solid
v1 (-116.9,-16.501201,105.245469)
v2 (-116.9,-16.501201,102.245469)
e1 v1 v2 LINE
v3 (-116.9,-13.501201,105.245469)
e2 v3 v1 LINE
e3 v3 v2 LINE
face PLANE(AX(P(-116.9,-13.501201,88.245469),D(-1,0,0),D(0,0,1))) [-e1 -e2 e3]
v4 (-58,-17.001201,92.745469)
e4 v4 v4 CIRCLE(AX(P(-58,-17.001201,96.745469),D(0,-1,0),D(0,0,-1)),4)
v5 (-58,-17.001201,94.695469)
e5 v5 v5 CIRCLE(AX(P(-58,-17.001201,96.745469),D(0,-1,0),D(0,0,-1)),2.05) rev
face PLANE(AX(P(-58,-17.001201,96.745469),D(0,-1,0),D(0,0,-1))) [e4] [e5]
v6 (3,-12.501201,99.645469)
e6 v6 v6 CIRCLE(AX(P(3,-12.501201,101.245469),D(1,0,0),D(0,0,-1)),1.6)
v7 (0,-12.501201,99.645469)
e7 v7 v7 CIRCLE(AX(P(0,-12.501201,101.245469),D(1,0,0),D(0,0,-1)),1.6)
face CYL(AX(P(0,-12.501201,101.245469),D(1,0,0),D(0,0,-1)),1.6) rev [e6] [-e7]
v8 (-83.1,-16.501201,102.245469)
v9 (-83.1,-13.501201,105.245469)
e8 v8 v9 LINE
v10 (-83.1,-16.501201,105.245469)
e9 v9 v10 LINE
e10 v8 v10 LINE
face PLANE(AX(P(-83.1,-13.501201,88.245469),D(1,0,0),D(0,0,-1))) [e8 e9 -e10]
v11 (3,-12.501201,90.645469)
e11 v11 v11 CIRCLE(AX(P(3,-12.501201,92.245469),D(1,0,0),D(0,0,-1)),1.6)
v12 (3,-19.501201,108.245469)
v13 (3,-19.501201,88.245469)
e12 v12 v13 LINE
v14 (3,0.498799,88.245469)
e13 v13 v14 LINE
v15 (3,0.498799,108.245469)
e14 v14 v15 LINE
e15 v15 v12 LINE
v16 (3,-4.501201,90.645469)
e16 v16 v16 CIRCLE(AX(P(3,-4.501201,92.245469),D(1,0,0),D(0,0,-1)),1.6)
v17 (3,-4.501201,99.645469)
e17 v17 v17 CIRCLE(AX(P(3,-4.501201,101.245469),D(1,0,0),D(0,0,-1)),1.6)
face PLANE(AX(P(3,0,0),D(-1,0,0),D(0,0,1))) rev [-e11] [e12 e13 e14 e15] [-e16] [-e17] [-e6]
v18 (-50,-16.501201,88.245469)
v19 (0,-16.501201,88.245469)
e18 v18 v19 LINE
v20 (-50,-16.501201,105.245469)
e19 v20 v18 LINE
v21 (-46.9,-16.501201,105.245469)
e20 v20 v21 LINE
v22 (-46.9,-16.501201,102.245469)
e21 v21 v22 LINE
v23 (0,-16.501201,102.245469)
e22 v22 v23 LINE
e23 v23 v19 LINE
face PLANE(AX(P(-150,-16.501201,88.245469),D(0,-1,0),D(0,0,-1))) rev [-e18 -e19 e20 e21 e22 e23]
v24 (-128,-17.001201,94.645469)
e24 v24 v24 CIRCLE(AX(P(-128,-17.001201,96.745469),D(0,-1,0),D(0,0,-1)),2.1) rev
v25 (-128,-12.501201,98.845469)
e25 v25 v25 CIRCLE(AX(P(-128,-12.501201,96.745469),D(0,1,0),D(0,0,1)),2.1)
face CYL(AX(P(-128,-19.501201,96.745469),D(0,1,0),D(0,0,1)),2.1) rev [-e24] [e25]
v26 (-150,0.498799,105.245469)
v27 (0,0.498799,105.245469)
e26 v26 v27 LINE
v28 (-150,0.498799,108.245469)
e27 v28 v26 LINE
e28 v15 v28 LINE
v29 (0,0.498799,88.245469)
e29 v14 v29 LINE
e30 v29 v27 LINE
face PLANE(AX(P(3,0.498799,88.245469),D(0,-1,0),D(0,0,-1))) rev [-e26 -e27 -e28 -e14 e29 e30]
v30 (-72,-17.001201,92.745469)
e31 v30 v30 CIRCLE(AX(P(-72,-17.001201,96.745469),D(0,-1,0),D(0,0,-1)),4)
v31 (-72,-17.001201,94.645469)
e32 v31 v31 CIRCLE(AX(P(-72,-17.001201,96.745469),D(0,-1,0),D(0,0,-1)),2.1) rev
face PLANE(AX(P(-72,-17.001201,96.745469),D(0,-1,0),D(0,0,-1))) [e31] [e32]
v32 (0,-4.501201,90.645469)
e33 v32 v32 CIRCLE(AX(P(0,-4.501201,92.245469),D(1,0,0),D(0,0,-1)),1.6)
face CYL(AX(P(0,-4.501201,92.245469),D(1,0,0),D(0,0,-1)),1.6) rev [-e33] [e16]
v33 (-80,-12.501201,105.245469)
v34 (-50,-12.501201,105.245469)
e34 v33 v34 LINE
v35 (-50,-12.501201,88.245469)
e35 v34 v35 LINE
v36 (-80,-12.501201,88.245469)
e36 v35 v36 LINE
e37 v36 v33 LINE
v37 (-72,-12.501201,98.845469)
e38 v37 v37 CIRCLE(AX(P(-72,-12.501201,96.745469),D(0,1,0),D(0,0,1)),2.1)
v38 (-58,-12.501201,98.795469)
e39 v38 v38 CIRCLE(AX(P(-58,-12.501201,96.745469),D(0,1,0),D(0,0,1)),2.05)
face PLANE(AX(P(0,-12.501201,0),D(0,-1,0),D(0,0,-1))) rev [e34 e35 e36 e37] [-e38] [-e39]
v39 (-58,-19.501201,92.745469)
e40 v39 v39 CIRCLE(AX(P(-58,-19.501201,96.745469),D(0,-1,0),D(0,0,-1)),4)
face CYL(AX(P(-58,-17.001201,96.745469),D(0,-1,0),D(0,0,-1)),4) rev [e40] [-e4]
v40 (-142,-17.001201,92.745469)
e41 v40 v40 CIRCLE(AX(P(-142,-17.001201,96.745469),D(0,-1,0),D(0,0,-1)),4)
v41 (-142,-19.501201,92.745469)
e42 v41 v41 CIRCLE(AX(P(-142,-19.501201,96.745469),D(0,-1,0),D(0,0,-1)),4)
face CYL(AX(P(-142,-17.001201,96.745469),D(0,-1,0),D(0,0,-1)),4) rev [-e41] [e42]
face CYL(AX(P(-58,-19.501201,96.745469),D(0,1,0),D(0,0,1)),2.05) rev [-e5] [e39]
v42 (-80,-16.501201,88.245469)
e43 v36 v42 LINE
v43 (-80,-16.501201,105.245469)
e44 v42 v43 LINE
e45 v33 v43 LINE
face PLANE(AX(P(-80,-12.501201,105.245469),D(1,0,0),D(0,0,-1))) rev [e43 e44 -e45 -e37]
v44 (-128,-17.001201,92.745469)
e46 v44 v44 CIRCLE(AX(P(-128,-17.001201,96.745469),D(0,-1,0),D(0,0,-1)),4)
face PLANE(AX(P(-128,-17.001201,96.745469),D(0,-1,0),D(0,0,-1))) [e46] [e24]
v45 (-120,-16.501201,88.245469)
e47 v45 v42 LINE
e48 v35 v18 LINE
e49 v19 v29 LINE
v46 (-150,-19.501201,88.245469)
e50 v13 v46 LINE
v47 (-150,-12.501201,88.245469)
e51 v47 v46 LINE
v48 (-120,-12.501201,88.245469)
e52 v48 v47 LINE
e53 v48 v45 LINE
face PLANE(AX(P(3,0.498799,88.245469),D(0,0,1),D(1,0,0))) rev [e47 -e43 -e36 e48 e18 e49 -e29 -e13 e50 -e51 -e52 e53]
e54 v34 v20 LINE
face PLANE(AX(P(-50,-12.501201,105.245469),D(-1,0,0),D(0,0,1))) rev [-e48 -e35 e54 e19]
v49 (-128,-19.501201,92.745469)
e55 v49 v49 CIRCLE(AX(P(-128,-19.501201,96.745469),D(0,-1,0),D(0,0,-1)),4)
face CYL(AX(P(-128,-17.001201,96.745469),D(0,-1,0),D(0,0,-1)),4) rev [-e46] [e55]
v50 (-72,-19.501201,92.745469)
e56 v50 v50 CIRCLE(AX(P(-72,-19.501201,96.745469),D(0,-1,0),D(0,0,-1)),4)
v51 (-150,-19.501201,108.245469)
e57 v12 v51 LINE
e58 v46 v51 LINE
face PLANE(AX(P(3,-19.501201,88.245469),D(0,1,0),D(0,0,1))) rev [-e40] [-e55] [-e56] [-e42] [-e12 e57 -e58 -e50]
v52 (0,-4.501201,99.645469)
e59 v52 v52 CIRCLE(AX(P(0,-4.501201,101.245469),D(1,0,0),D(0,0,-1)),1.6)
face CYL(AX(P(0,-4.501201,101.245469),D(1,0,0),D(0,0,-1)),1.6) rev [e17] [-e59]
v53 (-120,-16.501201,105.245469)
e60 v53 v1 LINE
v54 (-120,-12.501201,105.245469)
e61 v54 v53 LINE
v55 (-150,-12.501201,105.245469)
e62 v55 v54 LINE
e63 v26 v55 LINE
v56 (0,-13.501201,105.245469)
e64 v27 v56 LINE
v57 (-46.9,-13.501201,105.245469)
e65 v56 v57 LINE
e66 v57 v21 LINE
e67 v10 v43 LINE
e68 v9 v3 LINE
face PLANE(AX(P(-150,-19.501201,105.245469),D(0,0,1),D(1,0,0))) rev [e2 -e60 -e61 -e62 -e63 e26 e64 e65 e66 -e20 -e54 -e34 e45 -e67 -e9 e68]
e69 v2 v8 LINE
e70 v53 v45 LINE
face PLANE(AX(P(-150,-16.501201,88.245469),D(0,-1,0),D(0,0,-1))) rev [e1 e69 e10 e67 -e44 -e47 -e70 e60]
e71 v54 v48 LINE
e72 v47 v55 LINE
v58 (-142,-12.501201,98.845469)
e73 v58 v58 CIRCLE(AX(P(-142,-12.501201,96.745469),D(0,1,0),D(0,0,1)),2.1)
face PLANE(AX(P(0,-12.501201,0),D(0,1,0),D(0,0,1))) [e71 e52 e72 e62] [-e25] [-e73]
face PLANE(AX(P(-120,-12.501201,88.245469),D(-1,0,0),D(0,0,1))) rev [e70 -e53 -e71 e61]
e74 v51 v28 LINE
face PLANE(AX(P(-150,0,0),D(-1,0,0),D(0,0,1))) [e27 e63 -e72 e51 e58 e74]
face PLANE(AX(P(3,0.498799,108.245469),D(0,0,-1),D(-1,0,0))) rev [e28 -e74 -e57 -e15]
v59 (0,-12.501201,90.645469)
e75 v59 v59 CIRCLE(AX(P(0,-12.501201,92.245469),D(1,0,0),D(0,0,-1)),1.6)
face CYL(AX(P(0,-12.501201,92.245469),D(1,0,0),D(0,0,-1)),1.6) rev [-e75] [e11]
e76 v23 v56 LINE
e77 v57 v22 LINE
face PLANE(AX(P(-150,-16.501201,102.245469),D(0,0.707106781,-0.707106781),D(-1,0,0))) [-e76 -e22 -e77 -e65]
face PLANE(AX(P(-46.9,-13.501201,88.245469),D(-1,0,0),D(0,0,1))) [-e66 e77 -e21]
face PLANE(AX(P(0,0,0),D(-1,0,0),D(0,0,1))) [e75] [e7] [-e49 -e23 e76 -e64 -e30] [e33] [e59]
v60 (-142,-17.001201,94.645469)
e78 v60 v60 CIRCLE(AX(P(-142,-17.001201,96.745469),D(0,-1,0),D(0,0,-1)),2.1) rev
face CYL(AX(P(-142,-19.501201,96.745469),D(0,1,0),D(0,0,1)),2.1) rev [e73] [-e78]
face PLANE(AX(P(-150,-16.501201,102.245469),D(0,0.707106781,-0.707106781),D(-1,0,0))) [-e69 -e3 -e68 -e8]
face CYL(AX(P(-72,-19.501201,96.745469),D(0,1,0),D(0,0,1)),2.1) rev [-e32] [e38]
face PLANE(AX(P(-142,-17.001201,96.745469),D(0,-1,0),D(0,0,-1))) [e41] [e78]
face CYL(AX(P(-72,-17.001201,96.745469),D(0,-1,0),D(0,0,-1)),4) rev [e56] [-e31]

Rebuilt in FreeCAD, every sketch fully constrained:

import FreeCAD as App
import Part
import Sketcher
from FreeCAD import Vector
Q = App.Units.Quantity


def edges_at(feature, points):
    """Names of the edges that pass closest to the given points."""
    edges = feature.Shape.Edges
    near = lambda p: min(range(len(edges)), key=lambda i: edges[i].distToShape(Part.Vertex(*p))[0])
    return sorted({f"Edge{near(p) + 1}" for p in points})

doc = App.newDocument("Part")
params = doc.addObject("Spreadsheet::Sheet", "Params")
for row, (alias, value) in enumerate([
    ("sketch1_width", "20 mm"),
    ("pad1_length", "3 mm"),
    ("sketch2_width", "20 mm"),
    ("sketch2_height", "3 mm"),
    ("pad2_length", "150 mm"),
    ("sketch3_width", "3 mm"),
    ("sketch3_height", "17 mm"),
    ("pad3_length", "150 mm"),
    ("sketch4_diameter", "3.2 mm"),
    ("pocket1_length", "3 mm"),
    ("sketch5_width", "30 mm"),
    ("sketch5_height", "17 mm"),
    ("pad4_length", "4 mm"),
    ("sketch6_width", "30 mm"),
    ("sketch6_height", "17 mm"),
    ("pad5_length", "4 mm"),
    ("sketch7_diameter", "4.1 mm"),
    ("sketch7_diameter2", "4.2 mm"),
    ("sketch8_diameter", "8 mm"),
    ("pocket3_length", "2.5 mm"),
    ("chamfer_size", "3 mm"),
    ("sketch9_height", "17 mm"),
    ("sketch9_width", "3.1 mm"),
    ("pocket4_length", "3 mm"),
], start=1):
    params.set(f"A{row}", alias)
    params.set(f"B{row}", "=" + value)
    params.setAlias(f"B{row}", alias)

body = doc.addObject("PartDesign::Body", "Body")

# Sketch on YZ plane
sketch1 = body.newObject("Sketcher::SketchObject", "Sketch")
sketch1.AttachmentSupport = (doc.getObject("YZ_Plane"), [""])
sketch1.MapMode = "FlatFace"
sketch1.addGeometry([
    Part.LineSegment(Vector(0.498799, 108.245469, 0), Vector(-19.501201, 108.245469, 0)),
    Part.LineSegment(Vector(-19.501201, 108.245469, 0), Vector(-19.501201, 88.245469, 0)),
    Part.LineSegment(Vector(-19.501201, 88.245469, 0), Vector(0.498799, 88.245469, 0)),
    Part.LineSegment(Vector(0.498799, 88.245469, 0), Vector(0.498799, 108.245469, 0)),
], False)
sketch1.addConstraint([
    Sketcher.Constraint("Coincident", 0, 2, 1, 1),
    Sketcher.Constraint("Coincident", 1, 2, 2, 1),
    Sketcher.Constraint("Coincident", 2, 2, 3, 1),
    Sketcher.Constraint("Coincident", 3, 2, 0, 1),
    Sketcher.Constraint("Horizontal", 0),
    Sketcher.Constraint("Vertical", 1),
    Sketcher.Constraint("Horizontal", 2),
    Sketcher.Constraint("Vertical", 3),
    Sketcher.Constraint("Equal", 2, 1),
    Sketcher.Constraint("DistanceX", 0, 2, 0, 1, Q("20 mm")),
    Sketcher.Constraint("DistanceX", 0, 2, -1, 1, Q("19.501201 mm")),
    Sketcher.Constraint("DistanceY", -1, 1, 0, 2, Q("108.245469 mm")),
])
sketch1.setExpression("Constraints[9]", "Params.sketch1_width")
pad1 = body.newObject("PartDesign::Pad", "Pad")
pad1.Profile = sketch1
pad1.setExpression("Length", "Params.pad1_length")

# Sketch on YZ plane
sketch2 = body.newObject("Sketcher::SketchObject", "Sketch001")
sketch2.AttachmentSupport = (doc.getObject("YZ_Plane"), [""])
sketch2.MapMode = "FlatFace"
sketch2.addGeometry([
    Part.LineSegment(Vector(0.498799, 105.245469, 0), Vector(-19.501201, 105.245469, 0)),
    Part.LineSegment(Vector(-19.501201, 105.245469, 0), Vector(-19.501201, 108.245469, 0)),
    Part.LineSegment(Vector(-19.501201, 108.245469, 0), Vector(0.498799, 108.245469, 0)),
    Part.LineSegment(Vector(0.498799, 108.245469, 0), Vector(0.498799, 105.245469, 0)),
], False)
sketch2.addConstraint([
    Sketcher.Constraint("Coincident", 0, 2, 1, 1),
    Sketcher.Constraint("Coincident", 1, 2, 2, 1),
    Sketcher.Constraint("Coincident", 2, 2, 3, 1),
    Sketcher.Constraint("Coincident", 3, 2, 0, 1),
    Sketcher.Constraint("Horizontal", 0),
    Sketcher.Constraint("Vertical", 1),
    Sketcher.Constraint("Horizontal", 2),
    Sketcher.Constraint("Vertical", 3),
    Sketcher.Constraint("DistanceX", 0, 2, 0, 1, Q("20 mm")),
    Sketcher.Constraint("DistanceY", 1, 1, 1, 2, Q("3 mm")),
    Sketcher.Constraint("DistanceX", 0, 2, -1, 1, Q("19.501201 mm")),
    Sketcher.Constraint("DistanceY", -1, 1, 0, 2, Q("105.245469 mm")),
])
sketch2.setExpression("Constraints[8]", "Params.sketch2_width")
sketch2.setExpression("Constraints[9]", "Params.sketch2_height")
pad2 = body.newObject("PartDesign::Pad", "Pad001")
pad2.Profile = sketch2
pad2.setExpression("Length", "Params.pad2_length")
pad2.Reversed = True

# Sketch on YZ plane
sketch3 = body.newObject("Sketcher::SketchObject", "Sketch002")
sketch3.AttachmentSupport = (doc.getObject("YZ_Plane"), [""])
sketch3.MapMode = "FlatFace"
sketch3.addGeometry([
    Part.LineSegment(Vector(-16.501201, 88.245469, 0), Vector(-19.501201, 88.245469, 0)),
    Part.LineSegment(Vector(-19.501201, 88.245469, 0), Vector(-19.501201, 105.245469, 0)),
    Part.LineSegment(Vector(-19.501201, 105.245469, 0), Vector(-16.501201, 105.245469, 0)),
    Part.LineSegment(Vector(-16.501201, 105.245469, 0), Vector(-16.501201, 88.245469, 0)),
], False)
sketch3.addConstraint([
    Sketcher.Constraint("Coincident", 0, 2, 1, 1),
    Sketcher.Constraint("Coincident", 1, 2, 2, 1),
    Sketcher.Constraint("Coincident", 2, 2, 3, 1),
    Sketcher.Constraint("Coincident", 3, 2, 0, 1),
    Sketcher.Constraint("Horizontal", 0),
    Sketcher.Constraint("Vertical", 1),
    Sketcher.Constraint("Horizontal", 2),
    Sketcher.Constraint("Vertical", 3),
    Sketcher.Constraint("DistanceX", 0, 2, 0, 1, Q("3 mm")),
    Sketcher.Constraint("DistanceY", 1, 1, 1, 2, Q("17 mm")),
    Sketcher.Constraint("DistanceX", 0, 2, -1, 1, Q("19.501201 mm")),
    Sketcher.Constraint("DistanceY", -1, 1, 0, 2, Q("88.245469 mm")),
])
sketch3.setExpression("Constraints[8]", "Params.sketch3_width")
sketch3.setExpression("Constraints[9]", "Params.sketch3_height")
pad3 = body.newObject("PartDesign::Pad", "Pad002")
pad3.Profile = sketch3
pad3.setExpression("Length", "Params.pad3_length")
pad3.Reversed = True

# Sketch on YZ plane
sketch4 = body.newObject("Sketcher::SketchObject", "Sketch003")
sketch4.AttachmentSupport = (doc.getObject("YZ_Plane"), [""])
sketch4.MapMode = "FlatFace"
sketch4.AttachmentOffset = App.Placement(Vector(0, 0, 3), App.Rotation())
sketch4.addGeometry([
    Part.Circle(Vector(-4.501201, 101.245469, 0), Vector(0, 0, 1), 1.6),
    Part.Circle(Vector(-4.501201, 92.245469, 0), Vector(0, 0, 1), 1.6),
    Part.Circle(Vector(-12.501201, 92.245469, 0), Vector(0, 0, 1), 1.6),
    Part.Circle(Vector(-12.501201, 101.245469, 0), Vector(0, 0, 1), 1.6),
], False)
sketch4.addConstraint([
    Sketcher.Constraint("Equal", 0, 1),
    Sketcher.Constraint("Equal", 1, 2),
    Sketcher.Constraint("Equal", 2, 3),
    Sketcher.Constraint("Horizontal", 1, 3, 2, 3),
    Sketcher.Constraint("Horizontal", 0, 3, 3, 3),
    Sketcher.Constraint("Vertical", 0, 3, 1, 3),
    Sketcher.Constraint("Vertical", 2, 3, 3, 3),
    Sketcher.Constraint("Diameter", 0, Q("3.2 mm")),
    Sketcher.Constraint("DistanceY", 1, 3, 0, 3, Q("9 mm")),
    Sketcher.Constraint("DistanceX", 2, 3, 1, 3, Q("8 mm")),
    Sketcher.Constraint("DistanceX", 0, 3, -1, 1, Q("4.501201 mm")),
    Sketcher.Constraint("DistanceY", -1, 1, 0, 3, Q("101.245469 mm")),
])
sketch4.setExpression("Constraints[7]", "Params.sketch4_diameter")
pocket1 = body.newObject("PartDesign::Pocket", "Pocket")
pocket1.Profile = sketch4
pocket1.setExpression("Length", "Params.pocket1_length")

# Sketch on XZ plane
sketch5 = body.newObject("Sketcher::SketchObject", "Sketch004")
sketch5.AttachmentSupport = (doc.getObject("XZ_Plane"), [""])
sketch5.MapMode = "FlatFace"
sketch5.AttachmentOffset = App.Placement(Vector(0, 0, 16.501201), App.Rotation())
sketch5.addGeometry([
    Part.LineSegment(Vector(-150, 88.245469, 0), Vector(-150, 105.245469, 0)),
    Part.LineSegment(Vector(-150, 105.245469, 0), Vector(-120, 105.245469, 0)),
    Part.LineSegment(Vector(-120, 105.245469, 0), Vector(-120, 88.245469, 0)),
    Part.LineSegment(Vector(-120, 88.245469, 0), Vector(-150, 88.245469, 0)),
], False)
sketch5.addConstraint([
    Sketcher.Constraint("Coincident", 0, 2, 1, 1),
    Sketcher.Constraint("Coincident", 1, 2, 2, 1),
    Sketcher.Constraint("Coincident", 2, 2, 3, 1),
    Sketcher.Constraint("Coincident", 3, 2, 0, 1),
    Sketcher.Constraint("Vertical", 0),
    Sketcher.Constraint("Horizontal", 1),
    Sketcher.Constraint("Vertical", 2),
    Sketcher.Constraint("Horizontal", 3),
    Sketcher.Constraint("DistanceX", 1, 1, 1, 2, Q("30 mm")),
    Sketcher.Constraint("DistanceY", 0, 1, 0, 2, Q("17 mm")),
    Sketcher.Constraint("DistanceX", 0, 2, -1, 1, Q("150 mm")),
    Sketcher.Constraint("DistanceY", -1, 1, 0, 2, Q("105.245469 mm")),
])
sketch5.setExpression("Constraints[8]", "Params.sketch5_width")
sketch5.setExpression("Constraints[9]", "Params.sketch5_height")
pad4 = body.newObject("PartDesign::Pad", "Pad003")
pad4.Profile = sketch5
pad4.setExpression("Length", "Params.pad4_length")
pad4.Reversed = True

# Sketch on XZ plane
sketch6 = body.newObject("Sketcher::SketchObject", "Sketch005")
sketch6.AttachmentSupport = (doc.getObject("XZ_Plane"), [""])
sketch6.MapMode = "FlatFace"
sketch6.AttachmentOffset = App.Placement(Vector(0, 0, 16.501201), App.Rotation())
sketch6.addGeometry([
    Part.LineSegment(Vector(-80, 88.245469, 0), Vector(-80, 105.245469, 0)),
    Part.LineSegment(Vector(-80, 105.245469, 0), Vector(-50, 105.245469, 0)),
    Part.LineSegment(Vector(-50, 105.245469, 0), Vector(-50, 88.245469, 0)),
    Part.LineSegment(Vector(-50, 88.245469, 0), Vector(-80, 88.245469, 0)),
], False)
sketch6.addConstraint([
    Sketcher.Constraint("Coincident", 0, 2, 1, 1),
    Sketcher.Constraint("Coincident", 1, 2, 2, 1),
    Sketcher.Constraint("Coincident", 2, 2, 3, 1),
    Sketcher.Constraint("Coincident", 3, 2, 0, 1),
    Sketcher.Constraint("Vertical", 0),
    Sketcher.Constraint("Horizontal", 1),
    Sketcher.Constraint("Vertical", 2),
    Sketcher.Constraint("Horizontal", 3),
    Sketcher.Constraint("DistanceX", 1, 1, 1, 2, Q("30 mm")),
    Sketcher.Constraint("DistanceY", 0, 1, 0, 2, Q("17 mm")),
    Sketcher.Constraint("DistanceX", 0, 2, -1, 1, Q("80 mm")),
    Sketcher.Constraint("DistanceY", -1, 1, 0, 2, Q("105.245469 mm")),
])
sketch6.setExpression("Constraints[8]", "Params.sketch6_width")
sketch6.setExpression("Constraints[9]", "Params.sketch6_height")
pad5 = body.newObject("PartDesign::Pad", "Pad004")
pad5.Profile = sketch6
pad5.setExpression("Length", "Params.pad5_length")
pad5.Reversed = True

# Sketch on XZ plane
sketch7 = body.newObject("Sketcher::SketchObject", "Sketch006")
sketch7.AttachmentSupport = (doc.getObject("XZ_Plane"), [""])
sketch7.MapMode = "FlatFace"
sketch7.AttachmentOffset = App.Placement(Vector(0, 0, 12.501201), App.Rotation())
sketch7.addGeometry([
    Part.Circle(Vector(-58, 96.745469, 0), Vector(0, 0, 1), 2.05),
    Part.Circle(Vector(-72, 96.745469, 0), Vector(0, 0, 1), 2.1),
    Part.Circle(Vector(-128, 96.745469, 0), Vector(0, 0, 1), 2.1),
    Part.Circle(Vector(-142, 96.745469, 0), Vector(0, 0, 1), 2.1),
], False)
sketch7.addConstraint([
    Sketcher.Constraint("Equal", 1, 2),
    Sketcher.Constraint("Equal", 2, 3),
    Sketcher.Constraint("Horizontal", 0, 3, 1, 3),
    Sketcher.Constraint("Horizontal", 1, 3, 2, 3),
    Sketcher.Constraint("Horizontal", 2, 3, 3, 3),
    Sketcher.Constraint("Diameter", 0, Q("4.1 mm")),
    Sketcher.Constraint("Diameter", 1, Q("4.2 mm")),
    Sketcher.Constraint("DistanceX", 0, 3, -1, 1, Q("58 mm")),
    Sketcher.Constraint("DistanceX", 1, 3, -1, 1, Q("72 mm")),
    Sketcher.Constraint("DistanceX", 2, 3, -1, 1, Q("128 mm")),
    Sketcher.Constraint("DistanceX", 3, 3, -1, 1, Q("142 mm")),
    Sketcher.Constraint("DistanceY", -1, 1, 0, 3, Q("96.745469 mm")),
])
sketch7.setExpression("Constraints[5]", "Params.sketch7_diameter")
sketch7.setExpression("Constraints[6]", "Params.sketch7_diameter2")
pocket2 = body.newObject("PartDesign::Pocket", "Pocket001")
pocket2.Profile = sketch7
pocket2.Type = "ThroughAll"
pocket2.Reversed = True

# Sketch on XZ plane
sketch8 = body.newObject("Sketcher::SketchObject", "Sketch007")
sketch8.AttachmentSupport = (doc.getObject("XZ_Plane"), [""])
sketch8.MapMode = "FlatFace"
sketch8.AttachmentOffset = App.Placement(Vector(0, 0, 19.501201), App.Rotation())
sketch8.addGeometry([
    Part.Circle(Vector(-142, 96.745469, 0), Vector(0, 0, 1), 4),
    Part.Circle(Vector(-128, 96.745469, 0), Vector(0, 0, 1), 4),
    Part.Circle(Vector(-72, 96.745469, 0), Vector(0, 0, 1), 4),
    Part.Circle(Vector(-58, 96.745469, 0), Vector(0, 0, 1), 4),
], False)
sketch8.addConstraint([
    Sketcher.Constraint("Equal", 0, 1),
    Sketcher.Constraint("Equal", 1, 2),
    Sketcher.Constraint("Equal", 2, 3),
    Sketcher.Constraint("Horizontal", 0, 3, 1, 3),
    Sketcher.Constraint("Horizontal", 1, 3, 2, 3),
    Sketcher.Constraint("Horizontal", 2, 3, 3, 3),
    Sketcher.Constraint("Diameter", 0, Q("8 mm")),
    Sketcher.Constraint("DistanceX", 0, 3, -1, 1, Q("142 mm")),
    Sketcher.Constraint("DistanceX", 1, 3, -1, 1, Q("128 mm")),
    Sketcher.Constraint("DistanceX", 2, 3, -1, 1, Q("72 mm")),
    Sketcher.Constraint("DistanceX", 3, 3, -1, 1, Q("58 mm")),
    Sketcher.Constraint("DistanceY", -1, 1, 0, 3, Q("96.745469 mm")),
])
sketch8.setExpression("Constraints[6]", "Params.sketch8_diameter")
pocket3 = body.newObject("PartDesign::Pocket", "Pocket002")
pocket3.Profile = sketch8
pocket3.setExpression("Length", "Params.pocket3_length")
doc.recompute()

chamfer = body.newObject("PartDesign::Chamfer", "Chamfer")
chamfer.Base = (pocket3, edges_at(pocket3, [(-100, -16.501, 105.245), (-25, -16.501, 105.245)]))
chamfer.setExpression("Size", "Params.chamfer_size")

# Sketch on XZ plane
sketch9 = body.newObject("Sketcher::SketchObject", "Sketch008")
sketch9.AttachmentSupport = (doc.getObject("XZ_Plane"), [""])
sketch9.MapMode = "FlatFace"
sketch9.AttachmentOffset = App.Placement(Vector(0, 0, 16.501201), App.Rotation())
sketch9.addGeometry([
    Part.LineSegment(Vector(-120, 88.245469, 0), Vector(-120, 105.245469, 0)),  # 0
    Part.LineSegment(Vector(-120, 105.245469, 0), Vector(-116.9, 105.245469, 0)),  # 1
    Part.LineSegment(Vector(-116.9, 105.245469, 0), Vector(-116.9, 88.245469, 0)),  # 2
    Part.LineSegment(Vector(-116.9, 88.245469, 0), Vector(-120, 88.245469, 0)),  # 3
    Part.LineSegment(Vector(-83.1, 88.245469, 0), Vector(-83.1, 105.245469, 0)),  # 4
    Part.LineSegment(Vector(-83.1, 105.245469, 0), Vector(-80, 105.245469, 0)),  # 5
    Part.LineSegment(Vector(-80, 105.245469, 0), Vector(-80, 88.245469, 0)),  # 6
    Part.LineSegment(Vector(-80, 88.245469, 0), Vector(-83.1, 88.245469, 0)),  # 7
    Part.LineSegment(Vector(-50, 88.245469, 0), Vector(-50, 105.245469, 0)),  # 8
    Part.LineSegment(Vector(-50, 105.245469, 0), Vector(-46.9, 105.245469, 0)),  # 9
    Part.LineSegment(Vector(-46.9, 105.245469, 0), Vector(-46.9, 88.245469, 0)),  # 10
    Part.LineSegment(Vector(-46.9, 88.245469, 0), Vector(-50, 88.245469, 0)),  # 11
], False)
sketch9.addConstraint([
    Sketcher.Constraint("Coincident", 0, 2, 1, 1),
    Sketcher.Constraint("Coincident", 1, 2, 2, 1),
    Sketcher.Constraint("Coincident", 2, 2, 3, 1),
    Sketcher.Constraint("Coincident", 3, 2, 0, 1),
    Sketcher.Constraint("Coincident", 4, 2, 5, 1),
    Sketcher.Constraint("Coincident", 5, 2, 6, 1),
    Sketcher.Constraint("Coincident", 6, 2, 7, 1),
    Sketcher.Constraint("Coincident", 7, 2, 4, 1),
    Sketcher.Constraint("Coincident", 8, 2, 9, 1),
    Sketcher.Constraint("Coincident", 9, 2, 10, 1),
    Sketcher.Constraint("Coincident", 10, 2, 11, 1),
    Sketcher.Constraint("Coincident", 11, 2, 8, 1),
    Sketcher.Constraint("Vertical", 0),
    Sketcher.Constraint("Horizontal", 1),
    Sketcher.Constraint("Vertical", 2),
    Sketcher.Constraint("Horizontal", 3),
    Sketcher.Constraint("Vertical", 4),
    Sketcher.Constraint("Horizontal", 5),
    Sketcher.Constraint("Vertical", 6),
    Sketcher.Constraint("Horizontal", 7),
    Sketcher.Constraint("Vertical", 8),
    Sketcher.Constraint("Horizontal", 9),
    Sketcher.Constraint("Vertical", 10),
    Sketcher.Constraint("Horizontal", 11),
    Sketcher.Constraint("Horizontal", 1, 2, 4, 2),
    Sketcher.Constraint("Horizontal", 3, 2, 6, 2),
    Sketcher.Constraint("Horizontal", 5, 2, 8, 2),
    Sketcher.Constraint("Horizontal", 7, 2, 10, 2),
    Sketcher.Constraint("Equal", 3, 5),
    Sketcher.Constraint("Equal", 7, 9),
    Sketcher.Constraint("DistanceY", 0, 1, 0, 2, Q("17 mm")),
    Sketcher.Constraint("DistanceX", 1, 1, 1, 2, Q("3.1 mm")),
    Sketcher.Constraint("DistanceX", 0, 2, -1, 1, Q("120 mm")),
    Sketcher.Constraint("DistanceX", 5, 2, -1, 1, Q("80 mm")),
    Sketcher.Constraint("DistanceX", 8, 2, -1, 1, Q("50 mm")),
    Sketcher.Constraint("DistanceY", -1, 1, 0, 2, Q("105.245469 mm")),
])
sketch9.setExpression("Constraints[30]", "Params.sketch9_height")
sketch9.setExpression("Constraints[31]", "Params.sketch9_width")
pocket4 = body.newObject("PartDesign::Pocket", "Pocket003")
pocket4.Profile = sketch9
pocket4.setExpression("Length", "Params.pocket4_length")

doc.recompute()
